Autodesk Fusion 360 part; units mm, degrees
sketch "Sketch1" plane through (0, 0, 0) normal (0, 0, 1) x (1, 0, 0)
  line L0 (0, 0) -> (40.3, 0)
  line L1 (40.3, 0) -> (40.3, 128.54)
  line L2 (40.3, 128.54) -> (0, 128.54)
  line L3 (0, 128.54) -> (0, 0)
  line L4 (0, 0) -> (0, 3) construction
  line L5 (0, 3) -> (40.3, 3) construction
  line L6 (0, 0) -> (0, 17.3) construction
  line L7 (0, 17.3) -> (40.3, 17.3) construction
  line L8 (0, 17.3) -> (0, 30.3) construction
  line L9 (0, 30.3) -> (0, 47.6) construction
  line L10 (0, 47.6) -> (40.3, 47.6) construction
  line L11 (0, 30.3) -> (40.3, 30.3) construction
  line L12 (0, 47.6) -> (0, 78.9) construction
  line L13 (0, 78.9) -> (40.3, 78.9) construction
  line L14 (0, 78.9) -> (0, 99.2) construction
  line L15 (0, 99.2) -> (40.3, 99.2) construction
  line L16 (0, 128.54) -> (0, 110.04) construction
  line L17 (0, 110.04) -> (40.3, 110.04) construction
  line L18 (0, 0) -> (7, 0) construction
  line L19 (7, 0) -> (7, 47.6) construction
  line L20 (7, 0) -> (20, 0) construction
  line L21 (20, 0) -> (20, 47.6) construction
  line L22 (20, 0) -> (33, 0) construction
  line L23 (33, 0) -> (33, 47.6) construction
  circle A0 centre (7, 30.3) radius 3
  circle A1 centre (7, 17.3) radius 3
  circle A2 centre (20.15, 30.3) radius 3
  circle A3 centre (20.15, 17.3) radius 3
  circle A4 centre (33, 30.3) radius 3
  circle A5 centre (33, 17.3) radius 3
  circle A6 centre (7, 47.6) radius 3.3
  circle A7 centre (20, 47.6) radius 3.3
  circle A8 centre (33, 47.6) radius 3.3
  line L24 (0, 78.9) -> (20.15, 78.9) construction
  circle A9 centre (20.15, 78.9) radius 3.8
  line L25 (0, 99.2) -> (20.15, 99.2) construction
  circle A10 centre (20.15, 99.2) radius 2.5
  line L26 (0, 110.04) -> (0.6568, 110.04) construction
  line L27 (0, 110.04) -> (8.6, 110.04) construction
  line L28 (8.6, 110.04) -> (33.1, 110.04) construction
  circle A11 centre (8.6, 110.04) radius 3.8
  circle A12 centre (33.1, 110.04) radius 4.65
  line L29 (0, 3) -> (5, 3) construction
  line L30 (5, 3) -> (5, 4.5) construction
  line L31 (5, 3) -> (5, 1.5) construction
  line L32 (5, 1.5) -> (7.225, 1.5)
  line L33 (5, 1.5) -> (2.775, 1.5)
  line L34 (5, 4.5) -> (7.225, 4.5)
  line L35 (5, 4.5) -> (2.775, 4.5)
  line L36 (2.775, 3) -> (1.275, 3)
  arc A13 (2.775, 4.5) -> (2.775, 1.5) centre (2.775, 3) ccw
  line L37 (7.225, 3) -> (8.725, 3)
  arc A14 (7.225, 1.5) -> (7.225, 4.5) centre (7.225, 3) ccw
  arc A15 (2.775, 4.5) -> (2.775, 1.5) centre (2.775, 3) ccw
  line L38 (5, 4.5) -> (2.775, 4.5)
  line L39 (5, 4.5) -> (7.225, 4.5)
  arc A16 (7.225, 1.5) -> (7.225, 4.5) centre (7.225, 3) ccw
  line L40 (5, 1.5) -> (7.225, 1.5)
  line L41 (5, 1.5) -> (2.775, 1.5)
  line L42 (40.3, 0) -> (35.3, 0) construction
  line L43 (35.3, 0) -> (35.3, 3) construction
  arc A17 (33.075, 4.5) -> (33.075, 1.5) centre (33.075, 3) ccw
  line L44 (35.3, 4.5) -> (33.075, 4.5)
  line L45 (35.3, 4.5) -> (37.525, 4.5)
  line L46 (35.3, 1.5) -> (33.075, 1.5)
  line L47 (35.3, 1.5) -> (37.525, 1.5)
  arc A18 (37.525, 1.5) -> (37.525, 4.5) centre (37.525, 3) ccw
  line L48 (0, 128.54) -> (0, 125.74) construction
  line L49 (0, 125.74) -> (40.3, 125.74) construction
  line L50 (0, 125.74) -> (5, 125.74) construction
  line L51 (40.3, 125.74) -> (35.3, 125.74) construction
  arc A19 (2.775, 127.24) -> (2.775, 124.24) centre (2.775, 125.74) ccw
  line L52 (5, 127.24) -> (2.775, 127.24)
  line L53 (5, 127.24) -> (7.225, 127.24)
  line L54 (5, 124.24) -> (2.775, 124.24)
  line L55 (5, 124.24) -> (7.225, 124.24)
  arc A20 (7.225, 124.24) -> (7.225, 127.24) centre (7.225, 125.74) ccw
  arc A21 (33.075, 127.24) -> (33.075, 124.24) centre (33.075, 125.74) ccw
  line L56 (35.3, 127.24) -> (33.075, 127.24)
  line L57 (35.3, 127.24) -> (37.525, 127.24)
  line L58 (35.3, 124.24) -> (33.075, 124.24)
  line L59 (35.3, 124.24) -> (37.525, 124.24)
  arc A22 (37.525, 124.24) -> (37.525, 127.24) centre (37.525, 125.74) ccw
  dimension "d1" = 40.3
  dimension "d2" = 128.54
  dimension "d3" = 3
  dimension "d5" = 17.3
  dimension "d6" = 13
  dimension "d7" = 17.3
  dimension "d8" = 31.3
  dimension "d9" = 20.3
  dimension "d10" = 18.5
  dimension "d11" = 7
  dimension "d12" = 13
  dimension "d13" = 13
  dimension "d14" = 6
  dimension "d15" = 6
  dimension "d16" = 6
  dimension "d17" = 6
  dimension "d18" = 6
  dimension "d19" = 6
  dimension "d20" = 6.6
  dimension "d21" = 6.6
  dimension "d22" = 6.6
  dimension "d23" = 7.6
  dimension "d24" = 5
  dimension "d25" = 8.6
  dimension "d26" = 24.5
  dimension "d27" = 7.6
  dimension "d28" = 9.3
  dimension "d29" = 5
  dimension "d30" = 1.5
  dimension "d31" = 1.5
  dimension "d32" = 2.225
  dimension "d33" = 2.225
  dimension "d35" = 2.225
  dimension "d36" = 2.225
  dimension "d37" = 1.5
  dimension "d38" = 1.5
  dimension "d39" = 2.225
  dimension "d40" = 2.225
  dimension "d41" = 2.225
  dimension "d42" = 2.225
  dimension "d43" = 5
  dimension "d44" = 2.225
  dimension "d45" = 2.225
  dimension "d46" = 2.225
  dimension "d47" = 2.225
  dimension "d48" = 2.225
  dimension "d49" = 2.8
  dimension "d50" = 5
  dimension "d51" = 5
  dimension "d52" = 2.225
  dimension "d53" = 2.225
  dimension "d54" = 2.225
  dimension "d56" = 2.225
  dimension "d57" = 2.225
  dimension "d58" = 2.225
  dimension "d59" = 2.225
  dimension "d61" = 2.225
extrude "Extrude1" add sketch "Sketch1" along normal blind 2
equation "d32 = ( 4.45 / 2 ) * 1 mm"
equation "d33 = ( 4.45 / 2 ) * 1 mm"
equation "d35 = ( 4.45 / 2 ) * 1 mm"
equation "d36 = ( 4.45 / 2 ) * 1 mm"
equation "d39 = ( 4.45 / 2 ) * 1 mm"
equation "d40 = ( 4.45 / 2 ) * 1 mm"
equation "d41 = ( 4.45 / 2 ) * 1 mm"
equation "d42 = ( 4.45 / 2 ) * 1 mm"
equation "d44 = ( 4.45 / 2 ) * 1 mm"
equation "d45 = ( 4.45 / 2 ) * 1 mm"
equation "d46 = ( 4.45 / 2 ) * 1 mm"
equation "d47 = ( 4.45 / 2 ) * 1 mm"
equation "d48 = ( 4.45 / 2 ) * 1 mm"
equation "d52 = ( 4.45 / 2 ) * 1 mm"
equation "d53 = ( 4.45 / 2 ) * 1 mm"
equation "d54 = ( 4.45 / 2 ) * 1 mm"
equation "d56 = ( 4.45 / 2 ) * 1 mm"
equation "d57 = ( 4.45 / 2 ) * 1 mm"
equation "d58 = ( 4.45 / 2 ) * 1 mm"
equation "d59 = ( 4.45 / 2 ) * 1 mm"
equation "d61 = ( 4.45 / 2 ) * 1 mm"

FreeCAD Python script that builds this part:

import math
import FreeCAD as App
import Part
import Sketcher
Q = App.Units.Quantity

doc = App.newDocument("Part")
body = doc.addObject("PartDesign::Body", "Body")

sketch1 = doc.addObject("Sketcher::SketchObject", "Sketch")
body.addObject(sketch1)
sketch1.AttachmentSupport = (doc.XY_Plane, [""])
sketch1.MapMode = "FlatFace"
sketch1.addGeometry(Part.LineSegment(App.Vector(0, 128.5, 0), App.Vector(0, 0, 0)), False)
sketch1.addGeometry(Part.LineSegment(App.Vector(0, 0, 0), App.Vector(40.3, 0, 0)), False)
sketch1.addGeometry(Part.LineSegment(App.Vector(40.3, 0, 0), App.Vector(40.3, 128.5, 0)), False)
sketch1.addGeometry(Part.LineSegment(App.Vector(40.3, 128.5, 0), App.Vector(0, 128.5, 0)), False)
sketch1.addGeometry(Part.LineSegment(App.Vector(7.2, 1.5, 0), App.Vector(2.8, 1.5, 0)), False)
sketch1.addGeometry(Part.ArcOfCircle(Part.Circle(App.Vector(2.8, 3, 0), App.Vector(0, 0, 1), 1.5), math.radians(90), math.radians(270)), False)
sketch1.addGeometry(Part.LineSegment(App.Vector(2.8, 4.5, 0), App.Vector(7.2, 4.5, 0)), False)
sketch1.addGeometry(Part.ArcOfCircle(Part.Circle(App.Vector(7.2, 3, 0), App.Vector(0, 0, 1), 1.5), math.radians(-90), math.radians(90)), False)
sketch1.addGeometry(Part.Circle(App.Vector(7, 17.3, 0), App.Vector(0, 0, 1), 3), False)
sketch1.addGeometry(Part.Circle(App.Vector(7, 30.3, 0), App.Vector(0, 0, 1), 3), False)
sketch1.addGeometry(Part.Circle(App.Vector(7, 47.6, 0), App.Vector(0, 0, 1), 3.3), False)
sketch1.addGeometry(Part.Circle(App.Vector(20, 47.6, 0), App.Vector(0, 0, 1), 3.3), False)
sketch1.addGeometry(Part.Circle(App.Vector(20.1, 17.3, 0), App.Vector(0, 0, 1), 3), False)
sketch1.addGeometry(Part.Circle(App.Vector(20.1, 30.3, 0), App.Vector(0, 0, 1), 3), False)
sketch1.addGeometry(Part.ArcOfCircle(Part.Circle(App.Vector(33.1, 3, 0), App.Vector(0, 0, 1), 1.5), math.radians(90), math.radians(270)), False)
sketch1.addGeometry(Part.LineSegment(App.Vector(33.1, 4.5, 0), App.Vector(37.5, 4.5, 0)), False)
sketch1.addGeometry(Part.ArcOfCircle(Part.Circle(App.Vector(37.5, 3, 0), App.Vector(0, 0, 1), 1.5), math.radians(-90), math.radians(90)), False)
sketch1.addGeometry(Part.LineSegment(App.Vector(37.5, 1.5, 0), App.Vector(33.1, 1.5, 0)), False)
sketch1.addGeometry(Part.Circle(App.Vector(33, 17.3, 0), App.Vector(0, 0, 1), 3), False)
sketch1.addGeometry(Part.Circle(App.Vector(33, 30.3, 0), App.Vector(0, 0, 1), 3), False)
sketch1.addGeometry(Part.Circle(App.Vector(33, 47.6, 0), App.Vector(0, 0, 1), 3.3), False)
sketch1.addGeometry(Part.Circle(App.Vector(8.6, 110, 0), App.Vector(0, 0, 1), 3.8), False)
sketch1.addGeometry(Part.ArcOfCircle(Part.Circle(App.Vector(2.8, 125.7, 0), App.Vector(0, 0, 1), 1.5), math.radians(90), math.radians(270)), False)
sketch1.addGeometry(Part.LineSegment(App.Vector(2.8, 127.2, 0), App.Vector(7.2, 127.2, 0)), False)
sketch1.addGeometry(Part.ArcOfCircle(Part.Circle(App.Vector(7.2, 125.7, 0), App.Vector(0, 0, 1), 1.5), math.radians(-90), math.radians(90)), False)
sketch1.addGeometry(Part.LineSegment(App.Vector(7.2, 124.2, 0), App.Vector(2.8, 124.2, 0)), False)
sketch1.addGeometry(Part.Circle(App.Vector(20.1, 78.9, 0), App.Vector(0, 0, 1), 3.8), False)
sketch1.addGeometry(Part.Circle(App.Vector(20.1, 99.2, 0), App.Vector(0, 0, 1), 2.5), False)
sketch1.addGeometry(Part.Circle(App.Vector(33.1, 110, 0), App.Vector(0, 0, 1), 4.7), False)
sketch1.addGeometry(Part.ArcOfCircle(Part.Circle(App.Vector(33.1, 125.7, 0), App.Vector(0, 0, 1), 1.5), math.radians(90), math.radians(270)), False)
sketch1.addGeometry(Part.LineSegment(App.Vector(33.1, 127.2, 0), App.Vector(37.5, 127.2, 0)), False)
sketch1.addGeometry(Part.ArcOfCircle(Part.Circle(App.Vector(37.5, 125.7, 0), App.Vector(0, 0, 1), 1.5), math.radians(-90), math.radians(90)), False)
sketch1.addGeometry(Part.LineSegment(App.Vector(37.5, 124.2, 0), App.Vector(33.1, 124.2, 0)), False)
sketch1.addConstraint(Sketcher.Constraint("Coincident", 0, 2, 1, 1))
sketch1.addConstraint(Sketcher.Constraint("Coincident", 1, 2, 2, 1))
sketch1.addConstraint(Sketcher.Constraint("Coincident", 2, 2, 3, 1))
sketch1.addConstraint(Sketcher.Constraint("Coincident", 3, 2, 0, 1))
sketch1.addConstraint(Sketcher.Constraint("Tangent", 4, 2, 5, 2))
sketch1.addConstraint(Sketcher.Constraint("Tangent", 5, 1, 6, 1))
sketch1.addConstraint(Sketcher.Constraint("Tangent", 6, 2, 7, 2))
sketch1.addConstraint(Sketcher.Constraint("Tangent", 7, 1, 4, 1))
sketch1.addConstraint(Sketcher.Constraint("Tangent", 14, 1, 15, 1))
sketch1.addConstraint(Sketcher.Constraint("Tangent", 15, 2, 16, 2))
sketch1.addConstraint(Sketcher.Constraint("Tangent", 16, 1, 17, 1))
sketch1.addConstraint(Sketcher.Constraint("Tangent", 17, 2, 14, 2))
sketch1.addConstraint(Sketcher.Constraint("Tangent", 22, 1, 23, 1))
sketch1.addConstraint(Sketcher.Constraint("Tangent", 23, 2, 24, 2))
sketch1.addConstraint(Sketcher.Constraint("Tangent", 24, 1, 25, 1))
sketch1.addConstraint(Sketcher.Constraint("Tangent", 25, 2, 22, 2))
sketch1.addConstraint(Sketcher.Constraint("Tangent", 29, 1, 30, 1))
sketch1.addConstraint(Sketcher.Constraint("Tangent", 30, 2, 31, 2))
sketch1.addConstraint(Sketcher.Constraint("Tangent", 31, 1, 32, 1))
sketch1.addConstraint(Sketcher.Constraint("Tangent", 32, 2, 29, 2))
sketch1.addConstraint(Sketcher.Constraint("Vertical", 0))
sketch1.addConstraint(Sketcher.Constraint("Horizontal", 1))
sketch1.addConstraint(Sketcher.Constraint("Vertical", 2))
sketch1.addConstraint(Sketcher.Constraint("Horizontal", 3))
sketch1.addConstraint(Sketcher.Constraint("Horizontal", 4))
sketch1.addConstraint(Sketcher.Constraint("Horizontal", 6))
sketch1.addConstraint(Sketcher.Constraint("Horizontal", 15))
sketch1.addConstraint(Sketcher.Constraint("Horizontal", 17))
sketch1.addConstraint(Sketcher.Constraint("Horizontal", 23))
sketch1.addConstraint(Sketcher.Constraint("Horizontal", 25))
sketch1.addConstraint(Sketcher.Constraint("Horizontal", 30))
sketch1.addConstraint(Sketcher.Constraint("Horizontal", 32))
sketch1.addConstraint(Sketcher.Constraint("Coincident", 0, 2, -1, 1))
sketch1.addConstraint(Sketcher.Constraint("Equal", 8, 9))
sketch1.addConstraint(Sketcher.Constraint("Equal", 10, 11))
sketch1.addConstraint(Sketcher.Constraint("Equal", 9, 12))
sketch1.addConstraint(Sketcher.Constraint("Equal", 12, 13))
sketch1.addConstraint(Sketcher.Constraint("Equal", 7, 14))
sketch1.addConstraint(Sketcher.Constraint("Equal", 13, 18))
sketch1.addConstraint(Sketcher.Constraint("Equal", 18, 19))
sketch1.addConstraint(Sketcher.Constraint("Equal", 11, 20))
sketch1.addConstraint(Sketcher.Constraint("Equal", 16, 22))
sketch1.addConstraint(Sketcher.Constraint("Equal", 21, 26))
sketch1.addConstraint(Sketcher.Constraint("Equal", 24, 29))
sketch1.addConstraint(Sketcher.Constraint("Horizontal", 10, 3, 11, 3))
sketch1.addConstraint(Sketcher.Constraint("Horizontal", 8, 3, 12, 3))
sketch1.addConstraint(Sketcher.Constraint("Horizontal", 9, 3, 13, 3))
sketch1.addConstraint(Sketcher.Constraint("Horizontal", 7, 3, 14, 3))
sketch1.addConstraint(Sketcher.Constraint("Horizontal", 12, 3, 18, 3))
sketch1.addConstraint(Sketcher.Constraint("Horizontal", 13, 3, 19, 3))
sketch1.addConstraint(Sketcher.Constraint("Horizontal", 11, 3, 20, 3))
sketch1.addConstraint(Sketcher.Constraint("Horizontal", 21, 3, 28, 3))
sketch1.addConstraint(Sketcher.Constraint("Horizontal", 24, 3, 29, 3))
sketch1.addConstraint(Sketcher.Constraint("Vertical", 8, 3, 9, 3))
sketch1.addConstraint(Sketcher.Constraint("Vertical", 9, 3, 10, 3))
sketch1.addConstraint(Sketcher.Constraint("Vertical", 12, 3, 13, 3))
sketch1.addConstraint(Sketcher.Constraint("Vertical", 18, 3, 19, 3))
sketch1.addConstraint(Sketcher.Constraint("Vertical", 19, 3, 20, 3))
sketch1.addConstraint(Sketcher.Constraint("Vertical", 5, 3, 22, 3))
sketch1.addConstraint(Sketcher.Constraint("Vertical", 7, 3, 24, 3))
sketch1.addConstraint(Sketcher.Constraint("Vertical", 13, 3, 26, 3))
sketch1.addConstraint(Sketcher.Constraint("Vertical", 26, 3, 27, 3))
sketch1.addConstraint(Sketcher.Constraint("Vertical", 14, 3, 29, 3))
sketch1.addConstraint(Sketcher.Constraint("Vertical", 16, 3, 31, 3))
sketch1.addConstraint(Sketcher.Constraint("Equal", 6, 15))
sketch1.addConstraint(Sketcher.Constraint("Diameter", 8, Q("6 mm")))
sketch1.addConstraint(Sketcher.Constraint("Diameter", 27, Q("5 mm")))
sketch1.addConstraint(Sketcher.Constraint("Diameter", 10, Q("6.6 mm")))
sketch1.addConstraint(Sketcher.Constraint("Diameter", 21, Q("7.6 mm")))
sketch1.addConstraint(Sketcher.Constraint("Diameter", 28, Q("9.3 mm")))
sketch1.addConstraint(Sketcher.Constraint("Radius", 5, Q("1.5 mm")))
sketch1.addConstraint(Sketcher.Constraint("DistanceX", 1, 1, 1, 2, Q("40.3 mm")))
sketch1.addConstraint(Sketcher.Constraint("DistanceY", -1, 1, 5, 3, Q("3 mm")))
sketch1.addConstraint(Sketcher.Constraint("DistanceX", -1, 1, 8, 3, Q("7 mm")))
sketch1.addConstraint(Sketcher.Constraint("DistanceY", 8, 3, 9, 3, Q("13 mm")))
sketch1.addConstraint(Sketcher.Constraint("DistanceX", 10, 3, 11, 3, Q("13 mm")))
sketch1.addConstraint(Sketcher.Constraint("DistanceX", 11, 3, 19, 3, Q("13 mm")))
sketch1.addConstraint(Sketcher.Constraint("DistanceY", 0, 2, 0, 1, Q("128.54 mm")))
sketch1.addConstraint(Sketcher.Constraint("DistanceY", -1, 1, 8, 3, Q("17.3 mm")))
sketch1.addConstraint(Sketcher.Constraint("DistanceX", -1, 1, 21, 3, Q("8.6 mm")))
sketch1.addConstraint(Sketcher.Constraint("DistanceY", 9, 3, 10, 3, Q("17.3 mm")))
sketch1.addConstraint(Sketcher.Constraint("DistanceY", 11, 3, 26, 3, Q("31.3 mm")))
sketch1.addConstraint(Sketcher.Constraint("DistanceY", 26, 3, 27, 3, Q("20.3 mm")))
sketch1.addConstraint(Sketcher.Constraint("DistanceX", 21, 3, 28, 3, Q("24.5 mm")))
sketch1.addConstraint(Sketcher.Constraint("DistanceY", 31, 3, 2, 2, Q("2.8 mm")))
sketch1.addConstraint(Sketcher.Constraint("DistanceY", 28, 3, 2, 2, Q("18.5 mm")))
sketch1.addConstraint(Sketcher.Constraint("DistanceX", 4, 2, 4, 1, Q("4.45 mm")))
sketch1.addConstraint(Sketcher.Constraint("DistanceX", 5, 3, 14, 3, Q("30.3 mm")))
sketch1.addConstraint(Sketcher.Constraint("DistanceX", -1, 1, 12, 3, Q("20.15 mm")))
sketch1.addConstraint(Sketcher.Constraint("DistanceX", -1, 1, 5, 3, Q("2.775 mm")))
pad1 = doc.addObject("PartDesign::Pad", "Pad")
body.addObject(pad1)
pad1.Profile = sketch1
pad1.Length = 2

doc.recompute()
